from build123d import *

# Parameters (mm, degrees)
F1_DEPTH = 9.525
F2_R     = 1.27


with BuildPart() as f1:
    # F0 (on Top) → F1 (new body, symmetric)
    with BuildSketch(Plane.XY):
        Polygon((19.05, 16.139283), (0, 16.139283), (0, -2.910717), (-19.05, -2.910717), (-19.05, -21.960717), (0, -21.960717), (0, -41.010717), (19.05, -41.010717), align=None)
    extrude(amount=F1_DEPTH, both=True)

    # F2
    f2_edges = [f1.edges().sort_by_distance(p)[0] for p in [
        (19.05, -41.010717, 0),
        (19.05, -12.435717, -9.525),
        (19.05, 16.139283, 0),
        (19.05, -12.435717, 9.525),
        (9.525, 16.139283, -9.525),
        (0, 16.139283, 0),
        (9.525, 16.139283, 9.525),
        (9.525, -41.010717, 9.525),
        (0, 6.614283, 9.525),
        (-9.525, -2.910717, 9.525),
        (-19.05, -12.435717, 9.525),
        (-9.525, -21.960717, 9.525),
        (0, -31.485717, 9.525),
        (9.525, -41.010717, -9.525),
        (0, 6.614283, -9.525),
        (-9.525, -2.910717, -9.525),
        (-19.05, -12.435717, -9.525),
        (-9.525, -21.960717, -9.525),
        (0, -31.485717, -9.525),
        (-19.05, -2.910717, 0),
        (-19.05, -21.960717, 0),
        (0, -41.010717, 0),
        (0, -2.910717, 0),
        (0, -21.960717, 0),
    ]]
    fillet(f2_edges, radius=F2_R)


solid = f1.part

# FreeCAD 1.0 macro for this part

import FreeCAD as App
import Part
import Sketcher
from FreeCAD import Vector
Q = App.Units.Quantity


def add_polygon(sketch, points):
    """Adds a closed chain of lines whose ends are joined by coincident constraints."""
    first, n = sketch.GeometryCount, len(points)
    for a, b in zip(points, points[1:] + points[:1]):
        sketch.addGeometry(Part.LineSegment(App.Vector(*a, 0), App.Vector(*b, 0)), False)
    for i in range(n):
        sketch.addConstraint(Sketcher.Constraint("Coincident", first + i, 2, first + (i + 1) % n, 1))

doc = App.newDocument("Part")
body = doc.addObject("PartDesign::Body", "Body")

# Sketch on XY plane
sketch1 = body.newObject("Sketcher::SketchObject", "Sketch")
sketch1.AttachmentSupport = (doc.getObject("XY_Plane"), [""])
sketch1.MapMode = "FlatFace"
add_polygon(sketch1, [(19.05, 16.139283), (0, 16.139283), (0, -2.910717), (-19.05, -2.910717), (-19.05, -21.960717), (0, -21.960717), (0, -41.010717), (19.05, -41.010717)])  # lines 0-7
sketch1.addConstraint(Sketcher.Constraint("Horizontal", 0))
sketch1.addConstraint(Sketcher.Constraint("Vertical", 1))
sketch1.addConstraint(Sketcher.Constraint("Horizontal", 2))
sketch1.addConstraint(Sketcher.Constraint("Vertical", 3))
sketch1.addConstraint(Sketcher.Constraint("Horizontal", 4))
sketch1.addConstraint(Sketcher.Constraint("Vertical", 5))
sketch1.addConstraint(Sketcher.Constraint("Horizontal", 6))
sketch1.addConstraint(Sketcher.Constraint("Vertical", 7))
sketch1.addConstraint(Sketcher.Constraint("PointOnObject", 0, 2, -2))
sketch1.addConstraint(Sketcher.Constraint("PointOnObject", 4, 2, -2))
sketch1.addConstraint(Sketcher.Constraint("Equal", 0, 2))
sketch1.addConstraint(Sketcher.Constraint("Equal", 6, 1))
sketch1.addConstraint(Sketcher.Constraint("Equal", 1, 3))
sketch1.addConstraint(Sketcher.Constraint("Equal", 3, 5))
sketch1.addConstraint(Sketcher.Constraint("DistanceX", 0, 2, 0, 1, Q("0.75 in")))
sketch1.addConstraint(Sketcher.Constraint("DistanceY", -1, 1, 0, 2, 16.139283))
pad1 = body.newObject("PartDesign::Pad", "Pad")
pad1.Profile = sketch1
pad1.Length = Q("0.75 in")
pad1.Midplane = True
doc.recompute()

fillet = body.newObject("PartDesign::Fillet", "Fillet")
fillet.Base = (pad1, ["Edge1"])
fillet.UseAllEdges = True
fillet.Radius = Q("0.05 in")

doc.recompute()
